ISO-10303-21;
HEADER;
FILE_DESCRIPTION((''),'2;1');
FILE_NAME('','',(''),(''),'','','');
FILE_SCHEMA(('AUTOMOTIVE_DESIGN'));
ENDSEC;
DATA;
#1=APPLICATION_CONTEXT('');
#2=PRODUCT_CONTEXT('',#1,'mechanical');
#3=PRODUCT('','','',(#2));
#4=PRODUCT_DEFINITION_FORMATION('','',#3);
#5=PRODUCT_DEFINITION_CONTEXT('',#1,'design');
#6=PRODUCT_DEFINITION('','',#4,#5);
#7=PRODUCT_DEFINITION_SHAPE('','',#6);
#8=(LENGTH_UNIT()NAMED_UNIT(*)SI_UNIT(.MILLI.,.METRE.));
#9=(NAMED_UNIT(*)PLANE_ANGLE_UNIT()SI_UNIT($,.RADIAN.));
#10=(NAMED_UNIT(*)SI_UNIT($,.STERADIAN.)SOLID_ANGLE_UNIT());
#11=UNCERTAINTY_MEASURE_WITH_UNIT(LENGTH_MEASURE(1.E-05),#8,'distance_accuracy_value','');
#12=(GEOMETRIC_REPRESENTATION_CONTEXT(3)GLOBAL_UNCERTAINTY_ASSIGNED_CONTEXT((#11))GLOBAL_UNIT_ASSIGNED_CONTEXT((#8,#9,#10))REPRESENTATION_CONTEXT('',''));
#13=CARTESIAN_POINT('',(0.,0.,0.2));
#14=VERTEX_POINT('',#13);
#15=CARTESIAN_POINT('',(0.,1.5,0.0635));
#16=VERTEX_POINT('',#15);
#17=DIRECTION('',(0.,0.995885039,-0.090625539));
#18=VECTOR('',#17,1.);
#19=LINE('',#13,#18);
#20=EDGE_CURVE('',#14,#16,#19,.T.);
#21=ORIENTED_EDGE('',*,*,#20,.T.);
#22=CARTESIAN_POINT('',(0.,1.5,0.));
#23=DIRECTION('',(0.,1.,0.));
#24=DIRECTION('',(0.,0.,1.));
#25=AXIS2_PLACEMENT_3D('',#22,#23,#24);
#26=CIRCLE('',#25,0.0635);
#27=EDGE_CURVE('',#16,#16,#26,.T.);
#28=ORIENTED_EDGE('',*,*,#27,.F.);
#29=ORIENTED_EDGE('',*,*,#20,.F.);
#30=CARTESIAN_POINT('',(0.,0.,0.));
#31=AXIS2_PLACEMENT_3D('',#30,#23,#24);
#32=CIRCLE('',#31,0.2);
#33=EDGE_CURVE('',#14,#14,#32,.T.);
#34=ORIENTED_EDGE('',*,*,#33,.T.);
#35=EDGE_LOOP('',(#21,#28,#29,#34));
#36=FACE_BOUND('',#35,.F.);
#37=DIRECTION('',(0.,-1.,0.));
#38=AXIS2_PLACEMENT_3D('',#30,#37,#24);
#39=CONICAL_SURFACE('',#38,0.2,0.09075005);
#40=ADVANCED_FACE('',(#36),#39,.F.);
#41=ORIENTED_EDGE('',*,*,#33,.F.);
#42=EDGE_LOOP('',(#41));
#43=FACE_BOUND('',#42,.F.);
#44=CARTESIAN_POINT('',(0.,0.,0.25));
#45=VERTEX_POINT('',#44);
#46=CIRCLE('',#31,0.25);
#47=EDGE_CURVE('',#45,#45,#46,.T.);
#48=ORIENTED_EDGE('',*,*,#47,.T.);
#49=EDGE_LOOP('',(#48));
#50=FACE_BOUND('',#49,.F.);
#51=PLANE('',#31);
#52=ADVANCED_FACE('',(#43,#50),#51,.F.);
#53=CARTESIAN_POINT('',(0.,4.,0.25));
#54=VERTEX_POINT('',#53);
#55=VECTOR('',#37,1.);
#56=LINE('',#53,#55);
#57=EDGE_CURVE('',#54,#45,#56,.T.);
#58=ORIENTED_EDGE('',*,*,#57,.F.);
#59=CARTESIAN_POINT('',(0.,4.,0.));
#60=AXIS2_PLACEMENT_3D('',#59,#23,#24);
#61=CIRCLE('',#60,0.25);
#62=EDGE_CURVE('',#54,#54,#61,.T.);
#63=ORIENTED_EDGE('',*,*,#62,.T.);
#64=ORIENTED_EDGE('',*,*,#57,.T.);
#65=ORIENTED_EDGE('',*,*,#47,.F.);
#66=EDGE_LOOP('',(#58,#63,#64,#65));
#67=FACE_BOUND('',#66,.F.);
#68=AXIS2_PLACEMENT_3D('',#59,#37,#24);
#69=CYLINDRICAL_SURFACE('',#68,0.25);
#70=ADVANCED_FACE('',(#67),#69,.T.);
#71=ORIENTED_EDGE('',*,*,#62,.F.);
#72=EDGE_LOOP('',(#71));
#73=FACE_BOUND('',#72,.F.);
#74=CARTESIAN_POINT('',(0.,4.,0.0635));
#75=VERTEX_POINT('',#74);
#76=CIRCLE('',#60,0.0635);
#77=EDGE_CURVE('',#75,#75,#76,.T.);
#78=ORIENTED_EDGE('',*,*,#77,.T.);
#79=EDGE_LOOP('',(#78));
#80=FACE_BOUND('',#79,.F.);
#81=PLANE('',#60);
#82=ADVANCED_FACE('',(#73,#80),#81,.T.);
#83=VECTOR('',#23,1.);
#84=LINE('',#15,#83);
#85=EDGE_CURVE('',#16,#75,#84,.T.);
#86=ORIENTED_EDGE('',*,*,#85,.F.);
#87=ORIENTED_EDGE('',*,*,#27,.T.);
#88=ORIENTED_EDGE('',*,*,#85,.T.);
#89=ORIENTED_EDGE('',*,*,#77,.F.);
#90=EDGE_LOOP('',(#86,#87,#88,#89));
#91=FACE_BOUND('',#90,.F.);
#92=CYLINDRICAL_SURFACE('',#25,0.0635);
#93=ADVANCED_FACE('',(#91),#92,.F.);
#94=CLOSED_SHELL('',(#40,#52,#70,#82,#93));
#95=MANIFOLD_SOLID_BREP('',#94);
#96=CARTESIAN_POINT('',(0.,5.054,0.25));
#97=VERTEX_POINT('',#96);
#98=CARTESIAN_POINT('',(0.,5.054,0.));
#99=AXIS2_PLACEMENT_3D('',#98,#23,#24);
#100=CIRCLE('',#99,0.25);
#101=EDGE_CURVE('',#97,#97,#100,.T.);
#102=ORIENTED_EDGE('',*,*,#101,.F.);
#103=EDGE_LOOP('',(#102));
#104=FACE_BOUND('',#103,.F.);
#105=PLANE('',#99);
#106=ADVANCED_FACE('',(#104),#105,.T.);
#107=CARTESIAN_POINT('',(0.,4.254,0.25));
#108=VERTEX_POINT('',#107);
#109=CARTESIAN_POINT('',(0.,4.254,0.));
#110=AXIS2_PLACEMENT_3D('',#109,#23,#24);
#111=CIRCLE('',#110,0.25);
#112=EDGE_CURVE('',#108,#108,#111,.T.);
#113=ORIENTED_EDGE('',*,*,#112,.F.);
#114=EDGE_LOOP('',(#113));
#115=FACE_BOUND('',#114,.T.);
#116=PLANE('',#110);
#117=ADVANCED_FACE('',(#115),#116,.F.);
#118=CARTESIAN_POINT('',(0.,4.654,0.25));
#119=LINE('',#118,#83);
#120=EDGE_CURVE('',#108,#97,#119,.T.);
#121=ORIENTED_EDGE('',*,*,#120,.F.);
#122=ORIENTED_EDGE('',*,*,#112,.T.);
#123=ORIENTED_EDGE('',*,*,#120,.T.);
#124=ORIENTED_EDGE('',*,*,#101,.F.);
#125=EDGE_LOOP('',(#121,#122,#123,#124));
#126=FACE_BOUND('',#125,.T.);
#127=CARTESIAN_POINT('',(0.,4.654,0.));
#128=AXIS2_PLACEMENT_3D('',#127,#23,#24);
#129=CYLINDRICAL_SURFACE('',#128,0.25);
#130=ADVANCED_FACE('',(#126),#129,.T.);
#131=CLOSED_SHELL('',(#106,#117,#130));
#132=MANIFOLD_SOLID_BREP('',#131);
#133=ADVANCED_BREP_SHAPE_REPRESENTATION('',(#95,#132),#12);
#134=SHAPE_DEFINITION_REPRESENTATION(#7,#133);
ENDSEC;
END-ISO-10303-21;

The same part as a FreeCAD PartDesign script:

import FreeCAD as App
import Part
import Sketcher

V = App.Vector
Q = App.Units.Quantity


def add_polygon(sketch, points):
    """Adds a closed chain of lines whose ends are joined by coincident constraints."""
    first, n = sketch.GeometryCount, len(points)
    for a, b in zip(points, points[1:] + points[:1]):
        sketch.addGeometry(Part.LineSegment(App.Vector(*a, 0), App.Vector(*b, 0)), False)
    for i in range(n):
        sketch.addConstraint(Sketcher.Constraint("Coincident", first + i, 2, first + (i + 1) % n, 1))

doc = App.newDocument("Part")
params = doc.addObject("Spreadsheet::Sheet", "Params")
for row, (alias, value) in enumerate([
    ("sketch1_width", "4 mm"),
    ("sketch1_width2", "2.5 mm"),
    ("sketch1_height", "0.05 mm"),
    ("revolution_angle", "360 deg"),
    ("sketch2_width", "0.8 mm"),
    ("sketch2_height", "0.25 mm"),
    ("revolution2_angle", "360 deg"),
], start=1):
    params.set(f"A{row}", alias)
    params.set(f"B{row}", "=" + value)
    params.setAlias(f"B{row}", alias)

body = doc.addObject("PartDesign::Body", "Body")

sketch1 = body.newObject("Sketcher::SketchObject", "Sketch")
sketch1.AttachmentSupport = (doc.getObject("YZ_Plane"), [""])
sketch1.MapMode = "FlatFace"
add_polygon(sketch1, [(4, 0.25), (0, 0.25), (0, 0.2), (1.5, 0.06), (4, 0.06)])
sketch1.addConstraint(Sketcher.Constraint("Horizontal", 0))
sketch1.addConstraint(Sketcher.Constraint("Vertical", 1))
sketch1.addConstraint(Sketcher.Constraint("Horizontal", 3))
sketch1.addConstraint(Sketcher.Constraint("Vertical", 4))
sketch1.addConstraint(Sketcher.Constraint("PointOnObject", 0, 2, -2))
sketch1.addConstraint(Sketcher.Constraint("DistanceX", 0, 2, 0, 1, Q("4 mm")))
sketch1.addConstraint(Sketcher.Constraint("DistanceX", 3, 1, 3, 2, Q("2.5 mm")))
sketch1.addConstraint(Sketcher.Constraint("DistanceY", 1, 2, 1, 1, Q("0.05 mm")))
sketch1.addConstraint(Sketcher.Constraint("DistanceY", -1, 1, 1, 2, Q("0.2 mm")))
sketch1.addConstraint(Sketcher.Constraint("DistanceY", 4, 1, 4, 2, Q("0.1865 mm")))
sketch1.setExpression("Constraints[10]", "Params.sketch1_width")
sketch1.setExpression("Constraints[11]", "Params.sketch1_width2")
sketch1.setExpression("Constraints[12]", "Params.sketch1_height")
revolution = body.newObject("PartDesign::Revolution", "Revolution")
revolution.Profile = sketch1
revolution.ReferenceAxis = (sketch1, ["H_Axis"])
revolution.setExpression("Angle", "Params.revolution_angle")
body2 = doc.addObject("PartDesign::Body", "Body001")

sketch2 = body2.newObject("Sketcher::SketchObject", "Sketch001")
sketch2.AttachmentSupport = (doc.getObject("YZ_Plane001"), [""])
sketch2.MapMode = "FlatFace"
add_polygon(sketch2, [(4.25, 0.25), (4.25, 0), (5.05, 0), (5.05, 0.25)])
sketch2.addConstraint(Sketcher.Constraint("Vertical", 0))
sketch2.addConstraint(Sketcher.Constraint("Horizontal", 1))
sketch2.addConstraint(Sketcher.Constraint("Vertical", 2))
sketch2.addConstraint(Sketcher.Constraint("Horizontal", 3))
sketch2.addConstraint(Sketcher.Constraint("PointOnObject", 0, 2, -1))
sketch2.addConstraint(Sketcher.Constraint("DistanceX", 1, 1, 1, 2, Q("0.8 mm")))
sketch2.addConstraint(Sketcher.Constraint("DistanceY", 0, 2, 0, 1, Q("0.25 mm")))
sketch2.addConstraint(Sketcher.Constraint("DistanceX", -1, 1, 0, 2, Q("4.254 mm")))
sketch2.setExpression("Constraints[9]", "Params.sketch2_width")
sketch2.setExpression("Constraints[10]", "Params.sketch2_height")
revolution2 = body2.newObject("PartDesign::Revolution", "Revolution001")
revolution2.Profile = sketch2
revolution2.ReferenceAxis = (sketch2, ["H_Axis"])
revolution2.setExpression("Angle", "Params.revolution2_angle")

doc.recompute()
